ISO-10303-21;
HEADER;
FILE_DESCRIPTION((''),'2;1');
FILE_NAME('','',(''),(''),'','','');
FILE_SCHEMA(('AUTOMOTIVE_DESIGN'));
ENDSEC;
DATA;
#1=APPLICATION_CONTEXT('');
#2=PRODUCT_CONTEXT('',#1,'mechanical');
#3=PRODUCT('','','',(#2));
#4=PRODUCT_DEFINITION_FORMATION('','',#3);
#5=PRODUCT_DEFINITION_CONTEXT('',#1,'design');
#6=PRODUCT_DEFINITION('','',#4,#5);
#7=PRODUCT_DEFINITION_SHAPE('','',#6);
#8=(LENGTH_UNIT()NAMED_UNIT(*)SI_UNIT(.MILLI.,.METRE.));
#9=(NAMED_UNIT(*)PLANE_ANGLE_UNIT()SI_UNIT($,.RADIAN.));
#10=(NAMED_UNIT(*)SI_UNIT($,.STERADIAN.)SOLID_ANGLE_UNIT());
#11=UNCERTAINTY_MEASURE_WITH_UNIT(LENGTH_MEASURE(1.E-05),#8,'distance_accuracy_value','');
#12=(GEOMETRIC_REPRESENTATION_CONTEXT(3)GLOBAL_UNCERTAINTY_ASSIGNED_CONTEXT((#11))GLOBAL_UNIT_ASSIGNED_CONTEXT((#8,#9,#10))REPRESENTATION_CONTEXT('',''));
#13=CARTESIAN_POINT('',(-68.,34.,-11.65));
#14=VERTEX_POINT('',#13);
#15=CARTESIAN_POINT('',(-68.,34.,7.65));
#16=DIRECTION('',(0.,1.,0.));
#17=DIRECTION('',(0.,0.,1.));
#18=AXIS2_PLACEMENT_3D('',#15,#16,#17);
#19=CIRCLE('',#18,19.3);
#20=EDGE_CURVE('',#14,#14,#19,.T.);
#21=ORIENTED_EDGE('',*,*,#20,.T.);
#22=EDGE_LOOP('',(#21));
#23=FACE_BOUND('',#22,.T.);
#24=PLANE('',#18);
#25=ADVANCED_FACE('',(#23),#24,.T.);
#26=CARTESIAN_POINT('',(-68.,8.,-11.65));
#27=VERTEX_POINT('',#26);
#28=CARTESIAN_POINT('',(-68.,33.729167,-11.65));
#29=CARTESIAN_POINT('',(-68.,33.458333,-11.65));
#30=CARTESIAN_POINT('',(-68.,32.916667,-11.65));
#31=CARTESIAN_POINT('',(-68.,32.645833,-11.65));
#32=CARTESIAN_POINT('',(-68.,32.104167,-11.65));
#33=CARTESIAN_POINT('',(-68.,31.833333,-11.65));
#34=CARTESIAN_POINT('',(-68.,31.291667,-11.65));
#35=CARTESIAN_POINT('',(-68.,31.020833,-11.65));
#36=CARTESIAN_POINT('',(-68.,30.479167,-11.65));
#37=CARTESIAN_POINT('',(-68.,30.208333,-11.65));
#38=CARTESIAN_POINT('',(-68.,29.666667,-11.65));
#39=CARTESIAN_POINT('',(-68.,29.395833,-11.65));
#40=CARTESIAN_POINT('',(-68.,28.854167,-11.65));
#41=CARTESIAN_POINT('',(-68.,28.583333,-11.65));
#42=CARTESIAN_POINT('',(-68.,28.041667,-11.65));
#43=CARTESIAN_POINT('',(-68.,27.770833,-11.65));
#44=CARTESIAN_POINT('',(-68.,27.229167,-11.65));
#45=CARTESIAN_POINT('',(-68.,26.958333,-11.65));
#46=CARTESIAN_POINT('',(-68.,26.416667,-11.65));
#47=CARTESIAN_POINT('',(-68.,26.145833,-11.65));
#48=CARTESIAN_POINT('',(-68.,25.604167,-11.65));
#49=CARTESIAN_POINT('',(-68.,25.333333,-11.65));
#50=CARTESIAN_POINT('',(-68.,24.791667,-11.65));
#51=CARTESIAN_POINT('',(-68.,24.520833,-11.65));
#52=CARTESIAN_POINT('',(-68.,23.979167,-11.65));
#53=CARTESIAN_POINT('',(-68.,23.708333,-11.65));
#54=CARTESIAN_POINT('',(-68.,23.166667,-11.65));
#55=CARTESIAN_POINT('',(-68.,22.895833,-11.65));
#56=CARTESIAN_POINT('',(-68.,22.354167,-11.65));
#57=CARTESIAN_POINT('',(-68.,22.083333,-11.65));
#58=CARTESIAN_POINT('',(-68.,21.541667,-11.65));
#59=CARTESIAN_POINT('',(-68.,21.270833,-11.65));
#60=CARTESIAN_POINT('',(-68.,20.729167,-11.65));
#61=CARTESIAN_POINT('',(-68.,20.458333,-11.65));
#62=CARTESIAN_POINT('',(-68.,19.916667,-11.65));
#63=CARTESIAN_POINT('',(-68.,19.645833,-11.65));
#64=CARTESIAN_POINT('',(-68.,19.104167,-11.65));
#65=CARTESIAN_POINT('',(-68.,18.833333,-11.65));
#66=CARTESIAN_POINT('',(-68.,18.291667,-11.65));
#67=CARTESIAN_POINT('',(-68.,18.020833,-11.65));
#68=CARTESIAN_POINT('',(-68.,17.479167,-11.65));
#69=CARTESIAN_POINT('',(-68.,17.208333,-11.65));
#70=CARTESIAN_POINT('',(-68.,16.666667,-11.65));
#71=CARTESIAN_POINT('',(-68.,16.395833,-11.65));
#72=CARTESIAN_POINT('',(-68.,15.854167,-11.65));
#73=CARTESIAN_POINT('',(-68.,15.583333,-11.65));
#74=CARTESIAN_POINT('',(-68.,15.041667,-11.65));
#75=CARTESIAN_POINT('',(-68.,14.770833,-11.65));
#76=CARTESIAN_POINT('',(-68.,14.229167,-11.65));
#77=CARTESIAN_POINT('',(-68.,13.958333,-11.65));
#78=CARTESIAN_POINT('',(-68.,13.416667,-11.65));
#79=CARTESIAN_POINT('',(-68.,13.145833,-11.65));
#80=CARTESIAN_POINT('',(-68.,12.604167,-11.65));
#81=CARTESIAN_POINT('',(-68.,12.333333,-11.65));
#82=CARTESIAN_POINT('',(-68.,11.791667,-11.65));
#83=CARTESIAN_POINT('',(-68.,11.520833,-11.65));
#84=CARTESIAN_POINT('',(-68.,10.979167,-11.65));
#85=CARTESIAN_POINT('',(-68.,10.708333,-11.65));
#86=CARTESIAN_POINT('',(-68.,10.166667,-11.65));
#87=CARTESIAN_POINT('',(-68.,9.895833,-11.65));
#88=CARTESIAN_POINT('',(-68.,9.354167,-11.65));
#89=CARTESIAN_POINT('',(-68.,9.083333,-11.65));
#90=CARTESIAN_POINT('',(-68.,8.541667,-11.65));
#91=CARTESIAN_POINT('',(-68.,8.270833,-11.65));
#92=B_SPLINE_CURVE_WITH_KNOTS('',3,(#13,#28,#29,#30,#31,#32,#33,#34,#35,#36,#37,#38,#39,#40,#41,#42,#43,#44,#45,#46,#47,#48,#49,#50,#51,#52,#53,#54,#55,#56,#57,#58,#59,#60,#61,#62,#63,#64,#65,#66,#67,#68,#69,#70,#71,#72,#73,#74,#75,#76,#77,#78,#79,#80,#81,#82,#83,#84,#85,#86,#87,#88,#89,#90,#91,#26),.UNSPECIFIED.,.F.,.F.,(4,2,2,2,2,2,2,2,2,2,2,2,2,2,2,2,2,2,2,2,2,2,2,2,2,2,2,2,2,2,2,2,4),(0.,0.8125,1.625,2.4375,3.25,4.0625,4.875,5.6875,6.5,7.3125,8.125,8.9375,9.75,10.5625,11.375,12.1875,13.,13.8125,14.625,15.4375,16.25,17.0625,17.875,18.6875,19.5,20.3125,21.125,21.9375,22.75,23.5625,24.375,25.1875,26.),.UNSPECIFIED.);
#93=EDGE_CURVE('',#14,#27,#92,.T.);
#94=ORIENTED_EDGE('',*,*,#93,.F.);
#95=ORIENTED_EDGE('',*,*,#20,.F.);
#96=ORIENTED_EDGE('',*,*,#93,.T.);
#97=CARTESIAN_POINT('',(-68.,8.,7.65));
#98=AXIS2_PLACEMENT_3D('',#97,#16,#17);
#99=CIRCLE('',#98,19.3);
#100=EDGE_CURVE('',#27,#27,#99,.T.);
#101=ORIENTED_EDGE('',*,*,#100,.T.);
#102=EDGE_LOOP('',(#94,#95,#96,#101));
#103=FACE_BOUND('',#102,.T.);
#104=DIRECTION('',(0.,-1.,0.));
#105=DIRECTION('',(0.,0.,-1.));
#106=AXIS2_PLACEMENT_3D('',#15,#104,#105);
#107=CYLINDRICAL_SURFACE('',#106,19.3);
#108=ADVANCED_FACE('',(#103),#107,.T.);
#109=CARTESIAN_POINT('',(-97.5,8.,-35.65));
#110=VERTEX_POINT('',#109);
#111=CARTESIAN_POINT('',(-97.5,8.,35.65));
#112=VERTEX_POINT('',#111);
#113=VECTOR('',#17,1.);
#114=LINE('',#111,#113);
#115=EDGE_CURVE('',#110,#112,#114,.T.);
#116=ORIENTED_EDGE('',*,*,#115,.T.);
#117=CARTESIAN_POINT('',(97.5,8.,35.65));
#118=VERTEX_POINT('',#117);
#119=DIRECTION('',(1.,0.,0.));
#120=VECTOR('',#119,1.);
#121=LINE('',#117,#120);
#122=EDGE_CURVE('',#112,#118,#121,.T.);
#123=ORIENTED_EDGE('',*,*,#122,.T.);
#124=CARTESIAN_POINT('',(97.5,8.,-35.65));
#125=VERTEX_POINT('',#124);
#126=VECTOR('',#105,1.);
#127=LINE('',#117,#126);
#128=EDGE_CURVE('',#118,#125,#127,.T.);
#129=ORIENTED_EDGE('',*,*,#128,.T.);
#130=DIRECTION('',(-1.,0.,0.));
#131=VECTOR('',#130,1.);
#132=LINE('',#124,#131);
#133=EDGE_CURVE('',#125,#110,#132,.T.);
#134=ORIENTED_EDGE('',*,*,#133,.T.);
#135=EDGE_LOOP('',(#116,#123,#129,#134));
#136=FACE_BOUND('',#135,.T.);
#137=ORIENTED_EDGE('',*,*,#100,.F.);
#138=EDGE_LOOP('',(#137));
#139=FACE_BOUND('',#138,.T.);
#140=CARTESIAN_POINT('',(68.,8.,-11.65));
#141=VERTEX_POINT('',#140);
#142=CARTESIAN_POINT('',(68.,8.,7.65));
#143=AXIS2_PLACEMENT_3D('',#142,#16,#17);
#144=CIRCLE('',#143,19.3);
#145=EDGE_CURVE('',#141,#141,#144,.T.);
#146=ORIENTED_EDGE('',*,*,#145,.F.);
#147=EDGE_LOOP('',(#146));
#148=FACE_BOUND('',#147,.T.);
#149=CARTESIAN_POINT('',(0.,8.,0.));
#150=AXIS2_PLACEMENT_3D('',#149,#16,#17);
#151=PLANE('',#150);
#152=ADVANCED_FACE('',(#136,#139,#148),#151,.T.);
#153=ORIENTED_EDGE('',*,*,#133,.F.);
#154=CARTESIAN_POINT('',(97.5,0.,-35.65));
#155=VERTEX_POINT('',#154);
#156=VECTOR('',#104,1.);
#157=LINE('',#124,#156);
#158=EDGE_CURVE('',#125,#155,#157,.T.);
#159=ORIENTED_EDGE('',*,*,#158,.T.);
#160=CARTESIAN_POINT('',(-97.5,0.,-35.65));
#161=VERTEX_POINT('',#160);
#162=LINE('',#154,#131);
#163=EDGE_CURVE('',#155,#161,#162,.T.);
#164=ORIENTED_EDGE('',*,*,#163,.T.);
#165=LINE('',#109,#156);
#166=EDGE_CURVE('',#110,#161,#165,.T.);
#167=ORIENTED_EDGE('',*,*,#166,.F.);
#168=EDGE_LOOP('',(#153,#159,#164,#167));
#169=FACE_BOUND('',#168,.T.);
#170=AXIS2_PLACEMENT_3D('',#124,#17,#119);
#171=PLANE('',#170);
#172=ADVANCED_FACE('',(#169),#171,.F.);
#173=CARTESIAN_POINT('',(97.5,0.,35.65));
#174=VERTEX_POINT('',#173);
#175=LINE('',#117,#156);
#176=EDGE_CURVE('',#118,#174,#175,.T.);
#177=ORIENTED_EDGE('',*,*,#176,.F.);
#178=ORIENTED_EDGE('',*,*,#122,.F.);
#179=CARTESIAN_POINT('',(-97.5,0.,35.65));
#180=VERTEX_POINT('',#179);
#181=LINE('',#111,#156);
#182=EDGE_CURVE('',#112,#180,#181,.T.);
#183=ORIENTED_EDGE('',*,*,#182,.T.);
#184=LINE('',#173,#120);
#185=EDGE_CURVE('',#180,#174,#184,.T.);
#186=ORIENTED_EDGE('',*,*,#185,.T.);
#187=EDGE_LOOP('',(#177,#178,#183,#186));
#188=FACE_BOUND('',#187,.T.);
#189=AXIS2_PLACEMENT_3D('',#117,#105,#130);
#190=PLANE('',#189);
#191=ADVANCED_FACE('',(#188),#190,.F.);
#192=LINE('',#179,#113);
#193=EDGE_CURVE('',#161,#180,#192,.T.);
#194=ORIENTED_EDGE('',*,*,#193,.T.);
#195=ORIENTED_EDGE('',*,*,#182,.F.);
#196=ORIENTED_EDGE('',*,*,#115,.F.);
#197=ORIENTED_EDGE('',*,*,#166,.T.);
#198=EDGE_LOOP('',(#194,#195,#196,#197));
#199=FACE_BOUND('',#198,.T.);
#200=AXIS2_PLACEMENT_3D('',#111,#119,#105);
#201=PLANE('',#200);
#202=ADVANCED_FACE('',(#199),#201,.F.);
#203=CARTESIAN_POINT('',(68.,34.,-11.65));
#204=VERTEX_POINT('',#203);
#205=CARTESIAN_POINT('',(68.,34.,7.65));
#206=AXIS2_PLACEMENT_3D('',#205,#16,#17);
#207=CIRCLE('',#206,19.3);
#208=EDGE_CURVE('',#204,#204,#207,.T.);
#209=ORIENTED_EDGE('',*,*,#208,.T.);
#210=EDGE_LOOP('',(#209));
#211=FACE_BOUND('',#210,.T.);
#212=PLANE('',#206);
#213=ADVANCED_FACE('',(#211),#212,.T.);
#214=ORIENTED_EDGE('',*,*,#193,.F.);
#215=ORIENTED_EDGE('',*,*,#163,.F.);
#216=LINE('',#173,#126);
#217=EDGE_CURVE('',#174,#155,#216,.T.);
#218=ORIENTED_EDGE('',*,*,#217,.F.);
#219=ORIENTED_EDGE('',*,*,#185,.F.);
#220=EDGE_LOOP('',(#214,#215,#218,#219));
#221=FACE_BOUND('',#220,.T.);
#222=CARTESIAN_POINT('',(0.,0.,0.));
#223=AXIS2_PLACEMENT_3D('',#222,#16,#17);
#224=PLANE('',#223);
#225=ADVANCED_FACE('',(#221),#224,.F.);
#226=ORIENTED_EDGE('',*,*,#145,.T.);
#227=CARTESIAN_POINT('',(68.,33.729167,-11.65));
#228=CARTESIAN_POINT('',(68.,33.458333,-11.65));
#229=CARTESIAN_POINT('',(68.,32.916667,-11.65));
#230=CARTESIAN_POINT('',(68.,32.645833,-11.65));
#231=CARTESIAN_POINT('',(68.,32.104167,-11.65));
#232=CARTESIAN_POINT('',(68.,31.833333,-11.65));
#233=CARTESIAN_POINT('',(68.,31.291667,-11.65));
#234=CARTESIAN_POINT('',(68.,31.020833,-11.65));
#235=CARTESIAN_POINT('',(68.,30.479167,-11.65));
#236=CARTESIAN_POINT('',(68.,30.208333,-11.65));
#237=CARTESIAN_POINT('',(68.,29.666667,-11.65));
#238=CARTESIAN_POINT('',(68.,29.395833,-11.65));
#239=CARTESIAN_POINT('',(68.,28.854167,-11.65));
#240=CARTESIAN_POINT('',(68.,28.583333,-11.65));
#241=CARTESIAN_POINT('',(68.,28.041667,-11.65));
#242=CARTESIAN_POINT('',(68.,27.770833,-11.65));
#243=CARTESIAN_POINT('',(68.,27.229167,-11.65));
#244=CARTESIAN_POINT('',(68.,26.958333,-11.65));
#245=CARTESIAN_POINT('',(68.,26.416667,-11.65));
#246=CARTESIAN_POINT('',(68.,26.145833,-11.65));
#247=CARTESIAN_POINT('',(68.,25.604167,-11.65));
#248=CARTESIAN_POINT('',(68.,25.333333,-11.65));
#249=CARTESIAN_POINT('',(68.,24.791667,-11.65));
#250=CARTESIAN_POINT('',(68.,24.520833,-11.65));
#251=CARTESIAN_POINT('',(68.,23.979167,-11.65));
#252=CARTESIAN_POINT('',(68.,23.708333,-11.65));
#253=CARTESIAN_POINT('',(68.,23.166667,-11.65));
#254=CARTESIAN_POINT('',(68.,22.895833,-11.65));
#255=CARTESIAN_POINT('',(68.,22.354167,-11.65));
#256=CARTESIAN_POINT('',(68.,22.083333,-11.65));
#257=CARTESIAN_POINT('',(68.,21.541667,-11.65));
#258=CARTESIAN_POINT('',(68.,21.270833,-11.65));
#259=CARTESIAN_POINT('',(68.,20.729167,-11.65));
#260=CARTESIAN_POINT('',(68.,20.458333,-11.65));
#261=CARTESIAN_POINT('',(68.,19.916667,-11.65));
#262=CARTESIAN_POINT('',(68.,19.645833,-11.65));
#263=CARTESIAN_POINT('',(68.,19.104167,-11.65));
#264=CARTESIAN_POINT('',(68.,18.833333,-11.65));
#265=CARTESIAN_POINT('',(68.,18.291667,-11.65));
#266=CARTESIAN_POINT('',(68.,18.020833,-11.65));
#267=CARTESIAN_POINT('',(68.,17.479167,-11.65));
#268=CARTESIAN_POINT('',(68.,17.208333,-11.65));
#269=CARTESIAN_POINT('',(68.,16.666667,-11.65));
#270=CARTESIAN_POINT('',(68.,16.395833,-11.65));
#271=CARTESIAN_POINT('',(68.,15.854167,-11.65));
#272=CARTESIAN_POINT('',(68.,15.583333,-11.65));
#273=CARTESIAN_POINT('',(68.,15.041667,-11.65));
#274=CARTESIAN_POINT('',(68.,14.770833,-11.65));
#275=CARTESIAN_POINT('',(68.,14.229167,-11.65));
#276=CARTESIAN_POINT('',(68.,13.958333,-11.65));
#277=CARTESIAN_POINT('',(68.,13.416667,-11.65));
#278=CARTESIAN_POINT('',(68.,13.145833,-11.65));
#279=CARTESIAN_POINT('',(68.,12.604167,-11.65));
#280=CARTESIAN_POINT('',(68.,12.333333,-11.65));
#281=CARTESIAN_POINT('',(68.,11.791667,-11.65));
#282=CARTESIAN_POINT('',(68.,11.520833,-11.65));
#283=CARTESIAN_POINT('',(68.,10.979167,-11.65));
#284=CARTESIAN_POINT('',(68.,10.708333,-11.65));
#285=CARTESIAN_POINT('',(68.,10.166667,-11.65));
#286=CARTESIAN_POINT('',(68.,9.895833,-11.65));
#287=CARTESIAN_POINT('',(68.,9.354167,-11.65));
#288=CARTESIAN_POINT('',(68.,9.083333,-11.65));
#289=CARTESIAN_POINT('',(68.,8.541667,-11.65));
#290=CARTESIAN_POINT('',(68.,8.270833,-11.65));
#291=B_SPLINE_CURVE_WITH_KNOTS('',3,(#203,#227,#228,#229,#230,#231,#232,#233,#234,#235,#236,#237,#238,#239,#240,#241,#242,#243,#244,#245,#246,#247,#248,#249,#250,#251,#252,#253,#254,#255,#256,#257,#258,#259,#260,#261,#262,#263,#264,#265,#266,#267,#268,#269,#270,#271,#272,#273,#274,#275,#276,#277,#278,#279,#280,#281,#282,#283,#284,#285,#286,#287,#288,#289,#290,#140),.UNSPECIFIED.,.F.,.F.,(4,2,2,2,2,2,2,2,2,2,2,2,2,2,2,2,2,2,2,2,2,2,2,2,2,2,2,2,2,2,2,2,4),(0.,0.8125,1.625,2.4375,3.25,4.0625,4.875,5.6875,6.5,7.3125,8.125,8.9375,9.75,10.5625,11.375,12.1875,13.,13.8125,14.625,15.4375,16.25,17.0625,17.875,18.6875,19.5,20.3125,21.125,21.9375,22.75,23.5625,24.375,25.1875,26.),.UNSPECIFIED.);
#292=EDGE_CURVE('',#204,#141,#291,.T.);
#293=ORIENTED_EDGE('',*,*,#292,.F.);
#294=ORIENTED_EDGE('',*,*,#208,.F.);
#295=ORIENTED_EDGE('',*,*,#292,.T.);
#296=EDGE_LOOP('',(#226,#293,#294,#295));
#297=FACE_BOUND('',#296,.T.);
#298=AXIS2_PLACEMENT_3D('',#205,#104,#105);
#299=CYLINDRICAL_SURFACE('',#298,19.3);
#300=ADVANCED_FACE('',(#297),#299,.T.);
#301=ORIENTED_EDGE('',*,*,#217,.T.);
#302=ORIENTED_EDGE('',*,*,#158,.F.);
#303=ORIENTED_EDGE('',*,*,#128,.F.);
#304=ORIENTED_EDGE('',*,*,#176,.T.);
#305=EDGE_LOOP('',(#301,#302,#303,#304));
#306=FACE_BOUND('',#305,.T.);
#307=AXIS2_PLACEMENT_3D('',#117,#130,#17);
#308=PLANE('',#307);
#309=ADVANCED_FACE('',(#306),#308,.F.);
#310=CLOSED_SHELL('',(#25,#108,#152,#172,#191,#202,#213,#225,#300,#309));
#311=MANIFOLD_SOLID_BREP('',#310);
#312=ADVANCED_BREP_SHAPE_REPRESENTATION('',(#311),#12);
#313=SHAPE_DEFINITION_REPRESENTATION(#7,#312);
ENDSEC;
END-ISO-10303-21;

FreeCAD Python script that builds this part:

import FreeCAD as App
import Part
import Sketcher

V = App.Vector

doc = App.newDocument("Part")
body = doc.addObject("PartDesign::Body", "Body")

# Sketch on XZ plane
sketch1 = body.newObject("Sketcher::SketchObject", "Sketch")
sketch1.AttachmentSupport = (doc.getObject("XZ_Plane"), [""])
sketch1.MapMode = "FlatFace"
sketch1.addGeometry(Part.LineSegment(V(-97.5, -35.65, 0), V(-97.5, 35.65, 0)), False)
sketch1.addGeometry(Part.LineSegment(V(-97.5, 35.65, 0), V(97.5, 35.65, 0)), False)
sketch1.addGeometry(Part.LineSegment(V(97.5, 35.65, 0), V(97.5, -35.65, 0)), False)
sketch1.addGeometry(Part.LineSegment(V(97.5, -35.65, 0), V(-97.5, -35.65, 0)), False)
sketch1.addConstraint(Sketcher.Constraint("Coincident", 0, 2, 1, 1))
sketch1.addConstraint(Sketcher.Constraint("Coincident", 1, 2, 2, 1))
sketch1.addConstraint(Sketcher.Constraint("Coincident", 2, 2, 3, 1))
sketch1.addConstraint(Sketcher.Constraint("Coincident", 3, 2, 0, 1))
sketch1.addConstraint(Sketcher.Constraint("Vertical", 0))
sketch1.addConstraint(Sketcher.Constraint("Horizontal", 1))
sketch1.addConstraint(Sketcher.Constraint("Vertical", 2))
sketch1.addConstraint(Sketcher.Constraint("Horizontal", 3))
sketch1.addConstraint(Sketcher.Constraint("Symmetric", 0, 2, 2, 2, -1, 1))
sketch1.addConstraint(Sketcher.Constraint("DistanceX", 1, 1, 1, 2, 195.0))
sketch1.addConstraint(Sketcher.Constraint("DistanceY", 0, 1, 0, 2, 71.3))
pad1 = body.newObject("PartDesign::Pad", "Pad")
pad1.Profile = sketch1
pad1.Length = 8
pad1.Reversed = True

# Sketch on XZ plane
sketch2 = body.newObject("Sketcher::SketchObject", "Sketch001")
sketch2.AttachmentSupport = (doc.getObject("XZ_Plane"), [""])
sketch2.MapMode = "FlatFace"
sketch2.AttachmentOffset = App.Placement(V(0, 0, -8), App.Rotation())
sketch2.addGeometry(Part.Circle(V(68, 7.65, 0), V(0, 0, 1), 19.3), False)
sketch2.addGeometry(Part.Circle(V(-68, 7.65, 0), V(0, 0, 1), 19.3), False)
sketch2.addConstraint(Sketcher.Constraint("Equal", 0, 1))
sketch2.addConstraint(Sketcher.Constraint("Symmetric", 0, 3, 1, 3, -2))
sketch2.addConstraint(Sketcher.Constraint("Diameter", 0, 38.6))
sketch2.addConstraint(Sketcher.Constraint("DistanceX", -1, 1, 0, 3, 68.0))
sketch2.addConstraint(Sketcher.Constraint("DistanceY", -1, 1, 0, 3, 7.65))
pad2 = body.newObject("PartDesign::Pad", "Pad001")
pad2.Profile = sketch2
pad2.Length = 26
pad2.Reversed = True

doc.recompute()
